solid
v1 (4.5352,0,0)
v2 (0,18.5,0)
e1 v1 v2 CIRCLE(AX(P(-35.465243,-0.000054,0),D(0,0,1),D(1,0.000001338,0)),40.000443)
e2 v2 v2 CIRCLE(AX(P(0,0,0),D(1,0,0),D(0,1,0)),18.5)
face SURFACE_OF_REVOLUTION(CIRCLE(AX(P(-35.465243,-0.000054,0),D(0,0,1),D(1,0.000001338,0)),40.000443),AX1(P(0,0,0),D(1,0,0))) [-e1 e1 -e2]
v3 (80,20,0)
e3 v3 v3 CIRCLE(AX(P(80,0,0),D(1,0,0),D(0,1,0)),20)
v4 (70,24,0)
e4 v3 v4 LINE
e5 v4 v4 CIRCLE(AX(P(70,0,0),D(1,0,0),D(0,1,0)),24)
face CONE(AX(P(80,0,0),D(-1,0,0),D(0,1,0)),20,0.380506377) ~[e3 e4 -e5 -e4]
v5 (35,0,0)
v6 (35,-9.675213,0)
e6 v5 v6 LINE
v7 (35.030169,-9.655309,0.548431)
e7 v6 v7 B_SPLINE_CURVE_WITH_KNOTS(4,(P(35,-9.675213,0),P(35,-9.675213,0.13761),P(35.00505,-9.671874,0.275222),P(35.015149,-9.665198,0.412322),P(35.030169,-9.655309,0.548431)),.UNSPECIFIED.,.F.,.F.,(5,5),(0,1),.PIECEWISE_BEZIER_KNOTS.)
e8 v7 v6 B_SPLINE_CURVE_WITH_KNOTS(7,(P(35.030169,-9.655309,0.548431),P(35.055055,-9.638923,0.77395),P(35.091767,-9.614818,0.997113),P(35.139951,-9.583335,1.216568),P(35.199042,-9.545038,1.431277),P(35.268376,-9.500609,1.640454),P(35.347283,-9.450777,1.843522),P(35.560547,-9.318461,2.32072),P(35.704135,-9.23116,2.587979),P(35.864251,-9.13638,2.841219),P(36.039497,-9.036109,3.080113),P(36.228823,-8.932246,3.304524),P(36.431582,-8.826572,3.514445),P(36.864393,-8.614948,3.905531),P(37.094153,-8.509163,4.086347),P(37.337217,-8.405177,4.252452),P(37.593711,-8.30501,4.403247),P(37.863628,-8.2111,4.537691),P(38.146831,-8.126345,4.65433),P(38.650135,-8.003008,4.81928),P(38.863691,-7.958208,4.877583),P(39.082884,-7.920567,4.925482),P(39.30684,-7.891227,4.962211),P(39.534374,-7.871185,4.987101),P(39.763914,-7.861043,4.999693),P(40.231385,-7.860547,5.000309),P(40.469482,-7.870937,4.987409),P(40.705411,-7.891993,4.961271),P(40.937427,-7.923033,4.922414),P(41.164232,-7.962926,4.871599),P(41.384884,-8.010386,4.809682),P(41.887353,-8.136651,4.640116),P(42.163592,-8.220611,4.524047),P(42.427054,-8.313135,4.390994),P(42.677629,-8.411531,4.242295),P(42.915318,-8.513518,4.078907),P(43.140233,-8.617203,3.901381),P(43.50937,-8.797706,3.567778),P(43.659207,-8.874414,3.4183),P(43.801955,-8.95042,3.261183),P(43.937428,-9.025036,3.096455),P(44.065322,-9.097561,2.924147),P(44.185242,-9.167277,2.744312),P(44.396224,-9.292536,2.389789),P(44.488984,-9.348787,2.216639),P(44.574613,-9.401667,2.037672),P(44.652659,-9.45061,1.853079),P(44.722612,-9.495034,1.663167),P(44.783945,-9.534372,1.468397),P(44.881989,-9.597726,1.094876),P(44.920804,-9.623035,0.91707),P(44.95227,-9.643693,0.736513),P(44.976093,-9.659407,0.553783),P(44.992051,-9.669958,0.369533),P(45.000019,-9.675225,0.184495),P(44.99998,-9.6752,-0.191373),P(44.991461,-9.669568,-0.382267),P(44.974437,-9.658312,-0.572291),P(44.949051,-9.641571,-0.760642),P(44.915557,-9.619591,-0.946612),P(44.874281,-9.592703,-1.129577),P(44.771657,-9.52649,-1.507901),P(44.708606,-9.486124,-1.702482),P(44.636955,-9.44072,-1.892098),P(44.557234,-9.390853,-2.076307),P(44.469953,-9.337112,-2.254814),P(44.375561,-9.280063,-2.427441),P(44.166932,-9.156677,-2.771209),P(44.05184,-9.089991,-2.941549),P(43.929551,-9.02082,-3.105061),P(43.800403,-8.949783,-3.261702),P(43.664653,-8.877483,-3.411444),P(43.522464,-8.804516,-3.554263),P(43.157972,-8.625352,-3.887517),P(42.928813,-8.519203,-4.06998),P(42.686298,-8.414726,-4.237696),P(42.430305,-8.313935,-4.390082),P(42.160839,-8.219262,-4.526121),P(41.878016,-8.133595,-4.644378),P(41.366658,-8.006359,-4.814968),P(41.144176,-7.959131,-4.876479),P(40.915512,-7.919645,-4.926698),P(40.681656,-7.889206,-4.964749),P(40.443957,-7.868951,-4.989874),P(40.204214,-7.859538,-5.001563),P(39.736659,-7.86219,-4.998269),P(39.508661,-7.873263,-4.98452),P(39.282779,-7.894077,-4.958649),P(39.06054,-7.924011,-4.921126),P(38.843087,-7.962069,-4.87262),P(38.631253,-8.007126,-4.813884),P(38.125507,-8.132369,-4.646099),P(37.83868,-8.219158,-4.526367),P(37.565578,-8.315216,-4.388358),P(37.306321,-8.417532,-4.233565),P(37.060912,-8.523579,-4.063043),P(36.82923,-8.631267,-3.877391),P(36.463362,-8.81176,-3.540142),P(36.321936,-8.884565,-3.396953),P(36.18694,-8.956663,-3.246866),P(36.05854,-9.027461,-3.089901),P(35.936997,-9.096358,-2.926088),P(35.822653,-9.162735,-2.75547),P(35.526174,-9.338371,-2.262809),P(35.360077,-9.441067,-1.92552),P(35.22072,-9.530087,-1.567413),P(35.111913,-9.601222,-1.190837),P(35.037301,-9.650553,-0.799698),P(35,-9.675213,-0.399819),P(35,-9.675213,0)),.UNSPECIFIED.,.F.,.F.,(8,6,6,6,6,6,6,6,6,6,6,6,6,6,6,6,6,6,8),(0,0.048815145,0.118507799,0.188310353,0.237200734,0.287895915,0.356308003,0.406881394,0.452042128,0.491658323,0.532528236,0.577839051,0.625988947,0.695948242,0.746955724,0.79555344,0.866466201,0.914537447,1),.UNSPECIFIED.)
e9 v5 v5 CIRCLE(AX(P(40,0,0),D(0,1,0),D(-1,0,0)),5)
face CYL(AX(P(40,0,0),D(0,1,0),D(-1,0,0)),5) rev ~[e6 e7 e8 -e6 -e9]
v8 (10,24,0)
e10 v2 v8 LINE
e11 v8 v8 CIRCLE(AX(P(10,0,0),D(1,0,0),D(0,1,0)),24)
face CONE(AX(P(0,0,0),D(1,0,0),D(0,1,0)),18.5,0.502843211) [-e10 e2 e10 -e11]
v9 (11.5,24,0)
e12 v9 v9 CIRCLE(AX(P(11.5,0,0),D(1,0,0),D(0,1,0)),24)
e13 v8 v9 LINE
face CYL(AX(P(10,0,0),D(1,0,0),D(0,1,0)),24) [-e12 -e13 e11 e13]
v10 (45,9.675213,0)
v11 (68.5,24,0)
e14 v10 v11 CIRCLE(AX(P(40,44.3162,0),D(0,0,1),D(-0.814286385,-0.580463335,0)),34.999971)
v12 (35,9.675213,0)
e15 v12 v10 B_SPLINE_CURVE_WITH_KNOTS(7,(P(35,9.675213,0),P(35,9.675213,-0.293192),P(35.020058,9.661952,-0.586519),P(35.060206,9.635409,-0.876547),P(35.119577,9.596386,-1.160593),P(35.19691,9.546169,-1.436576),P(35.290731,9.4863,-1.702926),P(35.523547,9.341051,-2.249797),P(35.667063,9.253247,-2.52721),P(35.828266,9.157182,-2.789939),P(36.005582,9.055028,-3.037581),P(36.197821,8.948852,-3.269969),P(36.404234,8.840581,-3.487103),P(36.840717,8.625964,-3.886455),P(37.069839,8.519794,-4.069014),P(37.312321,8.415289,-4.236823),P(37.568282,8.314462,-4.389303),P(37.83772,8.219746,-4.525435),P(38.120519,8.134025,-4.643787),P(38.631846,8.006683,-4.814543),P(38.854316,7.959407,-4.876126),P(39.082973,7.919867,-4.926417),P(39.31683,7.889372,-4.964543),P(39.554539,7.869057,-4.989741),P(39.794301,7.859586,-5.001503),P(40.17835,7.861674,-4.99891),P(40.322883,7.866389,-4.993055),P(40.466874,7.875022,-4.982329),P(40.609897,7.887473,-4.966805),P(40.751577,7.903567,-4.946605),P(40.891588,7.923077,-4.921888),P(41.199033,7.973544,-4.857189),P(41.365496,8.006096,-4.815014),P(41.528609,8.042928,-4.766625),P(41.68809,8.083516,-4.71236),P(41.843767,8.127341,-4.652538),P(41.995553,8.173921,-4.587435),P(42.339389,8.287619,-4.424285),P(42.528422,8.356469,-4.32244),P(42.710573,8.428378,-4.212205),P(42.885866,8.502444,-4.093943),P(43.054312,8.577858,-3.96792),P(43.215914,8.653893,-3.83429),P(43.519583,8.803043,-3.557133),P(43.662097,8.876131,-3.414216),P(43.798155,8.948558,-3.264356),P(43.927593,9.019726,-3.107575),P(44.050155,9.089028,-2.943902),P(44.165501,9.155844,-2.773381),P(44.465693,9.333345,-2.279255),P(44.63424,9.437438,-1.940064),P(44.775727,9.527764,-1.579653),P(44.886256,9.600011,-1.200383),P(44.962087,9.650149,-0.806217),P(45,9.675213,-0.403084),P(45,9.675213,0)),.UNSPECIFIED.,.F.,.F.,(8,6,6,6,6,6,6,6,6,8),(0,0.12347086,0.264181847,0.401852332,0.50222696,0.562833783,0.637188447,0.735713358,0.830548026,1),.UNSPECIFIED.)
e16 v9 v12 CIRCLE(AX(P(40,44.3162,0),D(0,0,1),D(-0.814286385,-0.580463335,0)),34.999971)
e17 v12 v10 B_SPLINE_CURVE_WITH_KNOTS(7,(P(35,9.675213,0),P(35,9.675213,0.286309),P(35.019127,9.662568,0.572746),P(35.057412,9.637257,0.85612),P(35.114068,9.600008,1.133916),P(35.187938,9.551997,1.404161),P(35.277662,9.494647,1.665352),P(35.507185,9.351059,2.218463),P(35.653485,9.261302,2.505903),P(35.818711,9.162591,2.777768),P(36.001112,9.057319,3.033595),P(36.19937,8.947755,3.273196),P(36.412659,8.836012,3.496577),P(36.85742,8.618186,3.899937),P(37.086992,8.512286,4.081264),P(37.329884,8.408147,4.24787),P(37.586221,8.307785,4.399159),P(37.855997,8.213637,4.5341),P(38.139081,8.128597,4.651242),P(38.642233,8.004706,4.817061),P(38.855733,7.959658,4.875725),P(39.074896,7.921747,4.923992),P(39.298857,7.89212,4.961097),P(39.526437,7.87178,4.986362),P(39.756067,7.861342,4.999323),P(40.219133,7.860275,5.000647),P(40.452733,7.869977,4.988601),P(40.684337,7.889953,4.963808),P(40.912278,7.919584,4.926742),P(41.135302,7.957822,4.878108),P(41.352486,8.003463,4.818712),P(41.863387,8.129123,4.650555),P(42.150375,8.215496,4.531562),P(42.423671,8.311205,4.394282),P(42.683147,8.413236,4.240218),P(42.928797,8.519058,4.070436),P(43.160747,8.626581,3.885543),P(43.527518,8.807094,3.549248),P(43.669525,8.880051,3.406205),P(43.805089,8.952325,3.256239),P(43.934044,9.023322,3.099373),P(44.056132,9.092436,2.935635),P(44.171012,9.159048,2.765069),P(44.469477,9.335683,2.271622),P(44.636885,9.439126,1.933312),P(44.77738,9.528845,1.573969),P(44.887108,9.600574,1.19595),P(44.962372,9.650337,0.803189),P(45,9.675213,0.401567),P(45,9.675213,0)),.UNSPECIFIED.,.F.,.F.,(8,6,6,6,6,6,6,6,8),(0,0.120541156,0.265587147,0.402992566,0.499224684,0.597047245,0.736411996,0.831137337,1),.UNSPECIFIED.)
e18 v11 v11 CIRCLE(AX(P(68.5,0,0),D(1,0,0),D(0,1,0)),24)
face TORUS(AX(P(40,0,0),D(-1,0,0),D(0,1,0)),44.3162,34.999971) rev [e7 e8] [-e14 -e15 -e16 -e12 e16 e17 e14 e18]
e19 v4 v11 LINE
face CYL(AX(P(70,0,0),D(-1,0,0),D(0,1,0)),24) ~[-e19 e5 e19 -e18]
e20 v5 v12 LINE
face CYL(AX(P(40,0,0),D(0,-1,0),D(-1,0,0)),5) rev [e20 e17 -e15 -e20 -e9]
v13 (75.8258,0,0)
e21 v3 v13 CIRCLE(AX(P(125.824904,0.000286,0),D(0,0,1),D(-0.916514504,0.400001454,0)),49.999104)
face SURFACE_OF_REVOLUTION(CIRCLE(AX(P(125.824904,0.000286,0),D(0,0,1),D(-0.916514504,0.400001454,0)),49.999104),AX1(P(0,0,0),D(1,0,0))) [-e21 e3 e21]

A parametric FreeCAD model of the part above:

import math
import FreeCAD as App
import Part
import Sketcher
from FreeCAD import Vector
Q = App.Units.Quantity

doc = App.newDocument("Part")
body = doc.addObject("PartDesign::Body", "Body")

# Sketch on XY plane
sketch1 = body.newObject("Sketcher::SketchObject", "Sketch")
sketch1.AttachmentSupport = (doc.getObject("XY_Plane"), [""])
sketch1.MapMode = "FlatFace"
sketch1.addGeometry(Part.LineSegment(Vector(10, 24, 0), Vector(0, 18.5, 0)), False)
sketch1.addGeometry(Part.ArcOfCircle(Part.Circle(Vector(-35.4648, 0, 0), Vector(0, 0, 1), 40), math.radians(0), math.radians(27.548527)), False)
sketch1.addGeometry(Part.LineSegment(Vector(4.5352, 0, 0), Vector(75.8258, 0, 0)), False)
sketch1.addGeometry(Part.ArcOfCircle(Part.Circle(Vector(125.8258, 0, 0), Vector(0, 0, 1), 50.000039), math.radians(156.421841), math.radians(180)), False)
sketch1.addGeometry(Part.LineSegment(Vector(80, 20, 0), Vector(70, 24, 0)), False)
sketch1.addGeometry(Part.LineSegment(Vector(70, 24, 0), Vector(68.5, 24, 0)), False)
sketch1.addGeometry(Part.ArcOfCircle(Part.Circle(Vector(40, 44.3162, 0), Vector(0, 0, 1), 34.999971), math.radians(-144.516862), math.radians(-35.483138)), False)
sketch1.addGeometry(Part.LineSegment(Vector(11.5, 24, 0), Vector(10, 24, 0)), False)
sketch1.addConstraint(Sketcher.Constraint("Coincident", 0, 2, 1, 2))
sketch1.addConstraint(Sketcher.Constraint("Coincident", 1, 1, 2, 1))
sketch1.addConstraint(Sketcher.Constraint("Coincident", 2, 2, 3, 2))
sketch1.addConstraint(Sketcher.Constraint("Coincident", 3, 1, 4, 1))
sketch1.addConstraint(Sketcher.Constraint("Coincident", 4, 2, 5, 1))
sketch1.addConstraint(Sketcher.Constraint("Coincident", 5, 2, 6, 2))
sketch1.addConstraint(Sketcher.Constraint("Coincident", 6, 1, 7, 1))
sketch1.addConstraint(Sketcher.Constraint("Coincident", 7, 2, 0, 1))
sketch1.addConstraint(Sketcher.Constraint("Horizontal", 2))
sketch1.addConstraint(Sketcher.Constraint("Horizontal", 5))
sketch1.addConstraint(Sketcher.Constraint("Horizontal", 7))
sketch1.addConstraint(Sketcher.Constraint("PointOnObject", 1, 3, -1))
sketch1.addConstraint(Sketcher.Constraint("PointOnObject", 3, 3, -1))
sketch1.addConstraint(Sketcher.Constraint("PointOnObject", 0, 2, -2))
sketch1.addConstraint(Sketcher.Constraint("PointOnObject", 1, 1, -1))
sketch1.addConstraint(Sketcher.Constraint("Horizontal", 5, 2, 6, 1))
sketch1.addConstraint(Sketcher.Constraint("Equal", 5, 7))
sketch1.addConstraint(Sketcher.Constraint("Radius", 1, Q("40 mm")))
sketch1.addConstraint(Sketcher.Constraint("Radius", 3, Q("50 mm")))
sketch1.addConstraint(Sketcher.Constraint("Radius", 6, Q("35 mm")))
sketch1.addConstraint(Sketcher.Constraint("DistanceX", 5, 2, 5, 1, Q("1.5 mm")))
sketch1.addConstraint(Sketcher.Constraint("DistanceX", -1, 1, 6, 3, Q("40 mm")))
sketch1.addConstraint(Sketcher.Constraint("DistanceY", -1, 1, 3, 1, Q("20 mm")))
sketch1.addConstraint(Sketcher.Constraint("DistanceY", -1, 1, 4, 2, Q("24 mm")))
sketch1.addConstraint(Sketcher.Constraint("DistanceX", 6, 3, 3, 1, Q("40 mm")))
sketch1.addConstraint(Sketcher.Constraint("DistanceY", -1, 1, 0, 2, Q("18.5 mm")))
sketch1.addConstraint(Sketcher.Constraint("DistanceX", -1, 1, 4, 2, Q("70 mm")))
revolution = body.newObject("PartDesign::Revolution", "Revolution")
revolution.Profile = sketch1
revolution.ReferenceAxis = (sketch1, ["H_Axis"])
revolution.Angle = 360

# Sketch on XZ plane
sketch2 = body.newObject("Sketcher::SketchObject", "Sketch001")
sketch2.AttachmentSupport = (doc.getObject("XZ_Plane"), [""])
sketch2.MapMode = "FlatFace"
sketch2.addGeometry(Part.Circle(Vector(40, 0, 0), Vector(0, 0, 1), 5), False)
sketch2.addConstraint(Sketcher.Constraint("PointOnObject", 0, 3, -1))
sketch2.addConstraint(Sketcher.Constraint("Diameter", 0, Q("10 mm")))
sketch2.addConstraint(Sketcher.Constraint("DistanceX", -1, 1, 0, 3, Q("40 mm")))
pocket1 = body.newObject("PartDesign::Pocket", "Pocket")
pocket1.Profile = sketch2
pocket1.Length = 60
pocket1.Midplane = True

doc.recompute()
